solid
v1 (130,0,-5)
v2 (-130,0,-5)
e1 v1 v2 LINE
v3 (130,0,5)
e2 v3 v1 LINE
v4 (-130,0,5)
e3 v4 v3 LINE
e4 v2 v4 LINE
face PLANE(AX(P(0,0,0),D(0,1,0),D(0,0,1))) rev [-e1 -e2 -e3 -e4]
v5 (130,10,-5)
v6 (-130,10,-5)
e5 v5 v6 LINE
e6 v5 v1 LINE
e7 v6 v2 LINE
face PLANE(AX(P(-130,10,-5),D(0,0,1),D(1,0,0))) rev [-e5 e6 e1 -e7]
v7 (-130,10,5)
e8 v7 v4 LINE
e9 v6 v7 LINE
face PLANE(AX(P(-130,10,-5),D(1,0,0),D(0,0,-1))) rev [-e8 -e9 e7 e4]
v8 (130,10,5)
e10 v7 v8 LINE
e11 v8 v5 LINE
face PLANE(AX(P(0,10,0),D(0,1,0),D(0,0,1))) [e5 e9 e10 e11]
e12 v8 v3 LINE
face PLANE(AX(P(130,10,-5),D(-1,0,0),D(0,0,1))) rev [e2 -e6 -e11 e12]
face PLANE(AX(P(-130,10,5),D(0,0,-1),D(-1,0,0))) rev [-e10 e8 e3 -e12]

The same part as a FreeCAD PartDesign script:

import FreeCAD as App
import Part
import Sketcher

V = App.Vector
Q = App.Units.Quantity


def add_polygon(sketch, points):
    """Adds a closed chain of lines whose ends are joined by coincident constraints."""
    first, n = sketch.GeometryCount, len(points)
    for a, b in zip(points, points[1:] + points[:1]):
        sketch.addGeometry(Part.LineSegment(App.Vector(*a, 0), App.Vector(*b, 0)), False)
    for i in range(n):
        sketch.addConstraint(Sketcher.Constraint("Coincident", first + i, 2, first + (i + 1) % n, 1))

doc = App.newDocument("Part")
body = doc.addObject("PartDesign::Body", "Body")

sketch1 = body.newObject("Sketcher::SketchObject", "Sketch")
sketch1.AttachmentSupport = (doc.getObject("XZ_Plane"), [""])
sketch1.MapMode = "FlatFace"
add_polygon(sketch1, [(-130, -5), (-130, 5), (130, 5), (130, -5)])
sketch1.addConstraint([
    Sketcher.Constraint("Vertical", 0),
    Sketcher.Constraint("Horizontal", 1),
    Sketcher.Constraint("Vertical", 2),
    Sketcher.Constraint("Horizontal", 3),
    Sketcher.Constraint("Symmetric", 0, 2, 2, 2, -1, 1),
    Sketcher.Constraint("DistanceX", 1, 1, 1, 2, Q("260 mm")),
    Sketcher.Constraint("DistanceY", 0, 1, 0, 2, Q("10 mm")),
])
pad1 = body.newObject("PartDesign::Pad", "Pad")
pad1.Profile = sketch1
pad1.Length = 10
pad1.Reversed = True

doc.recompute()
